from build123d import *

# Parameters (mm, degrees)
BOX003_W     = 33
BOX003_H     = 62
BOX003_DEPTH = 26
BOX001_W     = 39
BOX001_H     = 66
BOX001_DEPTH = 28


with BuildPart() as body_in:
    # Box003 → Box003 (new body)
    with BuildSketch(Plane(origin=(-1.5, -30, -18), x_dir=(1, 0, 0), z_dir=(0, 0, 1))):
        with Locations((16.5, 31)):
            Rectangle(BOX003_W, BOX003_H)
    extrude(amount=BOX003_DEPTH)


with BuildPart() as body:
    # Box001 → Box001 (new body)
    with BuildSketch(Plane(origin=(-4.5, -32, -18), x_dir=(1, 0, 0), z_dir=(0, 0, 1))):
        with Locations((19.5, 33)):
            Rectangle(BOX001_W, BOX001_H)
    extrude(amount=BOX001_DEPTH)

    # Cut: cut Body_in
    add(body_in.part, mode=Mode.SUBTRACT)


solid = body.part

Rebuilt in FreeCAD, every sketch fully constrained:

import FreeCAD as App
import Part
import Sketcher

V = App.Vector
Q = App.Units.Quantity


def add_polygon(sketch, points):
    """Adds a closed chain of lines whose ends are joined by coincident constraints."""
    first, n = sketch.GeometryCount, len(points)
    for a, b in zip(points, points[1:] + points[:1]):
        sketch.addGeometry(Part.LineSegment(App.Vector(*a, 0), App.Vector(*b, 0)), False)
    for i in range(n):
        sketch.addConstraint(Sketcher.Constraint("Coincident", first + i, 2, first + (i + 1) % n, 1))

doc = App.newDocument("Part")
body = doc.addObject("PartDesign::Body", "Body")

# Sketch on XY plane
sketch1 = body.newObject("Sketcher::SketchObject", "Sketch")
sketch1.AttachmentSupport = (doc.getObject("XY_Plane"), [""])
sketch1.MapMode = "FlatFace"
sketch1.AttachmentOffset = App.Placement(V(0, 0, -18), App.Rotation())
add_polygon(sketch1, [(-1.5, 32), (-1.5, -30), (31.5, -30), (31.5, 32)])  # lines 0-3
sketch1.addConstraint([
    Sketcher.Constraint("Vertical", 0),
    Sketcher.Constraint("Horizontal", 1),
    Sketcher.Constraint("Vertical", 2),
    Sketcher.Constraint("Horizontal", 3),
    Sketcher.Constraint("DistanceX", 1, 1, 1, 2, Q("33 mm")),
    Sketcher.Constraint("DistanceY", 0, 2, 0, 1, Q("62 mm")),
    Sketcher.Constraint("DistanceY", 0, 2, -1, 1, Q("30 mm")),
    Sketcher.Constraint("DistanceX", 0, 2, -1, 1, Q("1.5 mm")),
])
pad1 = body.newObject("PartDesign::Pad", "Pad")
pad1.Profile = sketch1
pad1.Length = 26
body2 = doc.addObject("PartDesign::Body", "Body001")

# Sketch on XY plane
sketch2 = body2.newObject("Sketcher::SketchObject", "Sketch001")
sketch2.AttachmentSupport = (doc.getObject("XY_Plane001"), [""])
sketch2.MapMode = "FlatFace"
sketch2.AttachmentOffset = App.Placement(V(0, 0, -18), App.Rotation())
add_polygon(sketch2, [(-4.5, 34), (-4.5, -32), (34.5, -32), (34.5, 34)])  # lines 0-3
sketch2.addConstraint([
    Sketcher.Constraint("Vertical", 0),
    Sketcher.Constraint("Horizontal", 1),
    Sketcher.Constraint("Vertical", 2),
    Sketcher.Constraint("Horizontal", 3),
    Sketcher.Constraint("DistanceX", 1, 1, 1, 2, Q("39 mm")),
    Sketcher.Constraint("DistanceY", 0, 2, 0, 1, Q("66 mm")),
    Sketcher.Constraint("DistanceY", 0, 2, -1, 1, Q("32 mm")),
    Sketcher.Constraint("DistanceX", 0, 2, -1, 1, Q("4.5 mm")),
])
pad2 = body2.newObject("PartDesign::Pad", "Pad001")
pad2.Profile = sketch2
pad2.Length = 28
doc.recompute()

boolean = body2.newObject("PartDesign::Boolean", "Boolean")
boolean.Type = "Cut"
boolean.addObjects([body])

doc.recompute()
